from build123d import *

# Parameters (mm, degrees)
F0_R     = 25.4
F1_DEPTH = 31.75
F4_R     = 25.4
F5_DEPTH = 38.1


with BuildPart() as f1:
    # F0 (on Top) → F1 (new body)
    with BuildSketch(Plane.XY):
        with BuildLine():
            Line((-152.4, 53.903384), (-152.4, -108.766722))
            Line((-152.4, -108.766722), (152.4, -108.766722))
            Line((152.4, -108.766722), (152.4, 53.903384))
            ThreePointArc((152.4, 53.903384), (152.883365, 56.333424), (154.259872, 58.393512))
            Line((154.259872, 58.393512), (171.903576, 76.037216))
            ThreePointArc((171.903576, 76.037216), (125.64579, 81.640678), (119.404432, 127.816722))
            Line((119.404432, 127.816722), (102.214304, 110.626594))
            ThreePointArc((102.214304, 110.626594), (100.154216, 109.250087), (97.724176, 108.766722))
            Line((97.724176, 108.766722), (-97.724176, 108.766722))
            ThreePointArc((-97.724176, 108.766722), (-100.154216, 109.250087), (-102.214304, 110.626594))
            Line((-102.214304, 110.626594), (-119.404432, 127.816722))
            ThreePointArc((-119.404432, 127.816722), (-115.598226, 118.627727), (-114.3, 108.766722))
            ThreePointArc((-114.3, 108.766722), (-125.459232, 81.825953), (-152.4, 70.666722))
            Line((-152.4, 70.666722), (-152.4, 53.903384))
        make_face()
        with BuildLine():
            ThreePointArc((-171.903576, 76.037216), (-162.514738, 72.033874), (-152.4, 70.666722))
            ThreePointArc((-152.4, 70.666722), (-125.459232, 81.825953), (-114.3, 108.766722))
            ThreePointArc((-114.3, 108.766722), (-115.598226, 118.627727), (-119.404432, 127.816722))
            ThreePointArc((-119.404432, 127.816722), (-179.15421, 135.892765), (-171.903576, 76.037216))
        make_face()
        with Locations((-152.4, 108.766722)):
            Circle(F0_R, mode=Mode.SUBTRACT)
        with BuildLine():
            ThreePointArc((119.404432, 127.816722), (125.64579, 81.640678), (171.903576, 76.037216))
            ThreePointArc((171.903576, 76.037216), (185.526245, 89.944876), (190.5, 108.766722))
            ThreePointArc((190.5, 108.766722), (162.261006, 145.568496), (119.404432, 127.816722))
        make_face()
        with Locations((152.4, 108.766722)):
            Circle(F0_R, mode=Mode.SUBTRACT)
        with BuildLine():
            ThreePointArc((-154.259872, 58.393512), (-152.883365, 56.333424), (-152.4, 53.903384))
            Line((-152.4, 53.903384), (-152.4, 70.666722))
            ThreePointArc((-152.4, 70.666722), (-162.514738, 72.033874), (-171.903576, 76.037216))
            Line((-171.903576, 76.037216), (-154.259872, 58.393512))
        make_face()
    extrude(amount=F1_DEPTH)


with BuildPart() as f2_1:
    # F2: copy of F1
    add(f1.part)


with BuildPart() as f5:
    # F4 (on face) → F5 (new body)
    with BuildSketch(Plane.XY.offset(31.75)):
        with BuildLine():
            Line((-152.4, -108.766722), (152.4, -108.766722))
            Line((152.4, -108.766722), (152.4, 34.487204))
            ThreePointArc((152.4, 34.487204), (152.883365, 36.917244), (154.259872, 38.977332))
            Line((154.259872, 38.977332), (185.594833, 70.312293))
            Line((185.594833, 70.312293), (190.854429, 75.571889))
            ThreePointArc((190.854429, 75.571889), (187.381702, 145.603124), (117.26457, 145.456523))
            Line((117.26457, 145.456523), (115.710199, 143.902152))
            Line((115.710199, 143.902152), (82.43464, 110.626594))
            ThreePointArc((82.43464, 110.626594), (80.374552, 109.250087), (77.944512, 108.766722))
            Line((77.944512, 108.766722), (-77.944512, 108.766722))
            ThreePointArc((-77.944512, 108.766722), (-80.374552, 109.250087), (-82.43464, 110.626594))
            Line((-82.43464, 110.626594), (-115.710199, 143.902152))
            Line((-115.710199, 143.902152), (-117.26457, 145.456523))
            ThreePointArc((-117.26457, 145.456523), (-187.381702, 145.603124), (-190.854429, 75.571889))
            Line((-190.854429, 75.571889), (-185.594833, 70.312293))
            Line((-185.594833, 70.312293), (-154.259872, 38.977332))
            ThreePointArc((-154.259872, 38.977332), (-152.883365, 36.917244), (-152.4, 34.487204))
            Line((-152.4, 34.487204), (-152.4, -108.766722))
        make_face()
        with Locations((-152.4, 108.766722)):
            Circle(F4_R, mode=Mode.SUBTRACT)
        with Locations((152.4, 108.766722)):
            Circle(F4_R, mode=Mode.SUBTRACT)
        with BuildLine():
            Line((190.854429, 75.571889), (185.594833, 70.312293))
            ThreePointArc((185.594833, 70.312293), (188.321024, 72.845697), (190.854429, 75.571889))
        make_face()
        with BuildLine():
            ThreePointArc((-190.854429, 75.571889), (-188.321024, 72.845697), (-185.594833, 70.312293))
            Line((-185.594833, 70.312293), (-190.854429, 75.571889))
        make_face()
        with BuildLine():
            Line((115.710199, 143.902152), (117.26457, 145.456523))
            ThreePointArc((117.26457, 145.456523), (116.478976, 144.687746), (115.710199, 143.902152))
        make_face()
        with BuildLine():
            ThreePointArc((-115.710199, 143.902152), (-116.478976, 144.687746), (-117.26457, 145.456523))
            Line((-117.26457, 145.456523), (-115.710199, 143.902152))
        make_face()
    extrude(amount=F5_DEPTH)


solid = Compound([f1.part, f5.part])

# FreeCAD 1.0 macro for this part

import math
import FreeCAD as App
import Part
import Sketcher
from FreeCAD import Vector
Q = App.Units.Quantity

doc = App.newDocument("Part")
body = doc.addObject("PartDesign::Body", "Body")

# Sketch on XY plane
sketch1 = body.newObject("Sketcher::SketchObject", "Sketch")
sketch1.AttachmentSupport = (doc.getObject("XY_Plane"), [""])
sketch1.MapMode = "FlatFace"
sketch1.addGeometry(Part.LineSegment(Vector(-152.4, -108.766722, 0), Vector(152.4, -108.766722, 0)), False)
sketch1.addGeometry(Part.LineSegment(Vector(152.4, -108.766722, 0), Vector(152.4, 53.903384, 0)), False)
sketch1.addGeometry(Part.ArcOfCircle(Part.Circle(Vector(158.749999, 53.903384, 0), Vector(0, 0, 1), 6.349999), math.radians(134.999995), math.radians(180.000003)), False)
sketch1.addGeometry(Part.LineSegment(Vector(154.259872, 58.393512, 0), Vector(171.903576, 76.037216, 0)), False)
sketch1.addGeometry(Part.ArcOfCircle(Part.Circle(Vector(152.399998, 108.766723, 0), Vector(0, 0, 1), 38.100002), math.radians(-59.209201), math.radians(-0.000001)), False)
sketch1.addGeometry(Part.ArcOfCircle(Part.Circle(Vector(152.4, 108.766722, 0), Vector(0, 0, 1), 38.1), math.radians(0), math.radians(150)), False)
sketch1.addGeometry(Part.LineSegment(Vector(119.404432, 127.816722, 0), Vector(102.214304, 110.626594, 0)), False)
sketch1.addGeometry(Part.ArcOfCircle(Part.Circle(Vector(97.724176, 115.116721, 0), Vector(0, 0, 1), 6.349999), math.radians(-90.000003), math.radians(-44.999995)), False)
sketch1.addGeometry(Part.LineSegment(Vector(97.724176, 108.766722, 0), Vector(-97.724176, 108.766722, 0)), False)
sketch1.addGeometry(Part.ArcOfCircle(Part.Circle(Vector(-97.724176, 115.116721, 0), Vector(0, 0, 1), 6.349999), math.radians(-135.000005), math.radians(-89.999997)), False)
sketch1.addGeometry(Part.LineSegment(Vector(-102.214304, 110.626594, 0), Vector(-119.404432, 127.816722, 0)), False)
sketch1.addGeometry(Part.ArcOfCircle(Part.Circle(Vector(-152.4, 108.766721, 0), Vector(0, 0, 1), 38.1), math.radians(30.000001), math.radians(239.209203)), False)
sketch1.addGeometry(Part.LineSegment(Vector(-171.903576, 76.037216, 0), Vector(-154.259872, 58.393512, 0)), False)
sketch1.addGeometry(Part.ArcOfCircle(Part.Circle(Vector(-158.749999, 53.903384, 0), Vector(0, 0, 1), 6.349999), math.radians(-0.000003), math.radians(45.000005)), False)
sketch1.addGeometry(Part.LineSegment(Vector(-152.4, 53.903384, 0), Vector(-152.4, -108.766722, 0)), False)
sketch1.addGeometry(Part.Circle(Vector(-152.4, 108.766722, 0), Vector(0, 0, 1), 25.4), False)
sketch1.addGeometry(Part.Circle(Vector(152.4, 108.766722, 0), Vector(0, 0, 1), 25.4), False)
sketch1.addConstraint(Sketcher.Constraint("Coincident", 0, 2, 1, 1))
sketch1.addConstraint(Sketcher.Constraint("Tangent", 1, 2, 2, 2))
sketch1.addConstraint(Sketcher.Constraint("Tangent", 2, 1, 3, 1))
sketch1.addConstraint(Sketcher.Constraint("Coincident", 3, 2, 4, 1))
sketch1.addConstraint(Sketcher.Constraint("Tangent", 4, 2, 5, 1))
sketch1.addConstraint(Sketcher.Constraint("Coincident", 5, 2, 6, 1))
sketch1.addConstraint(Sketcher.Constraint("Tangent", 6, 2, 7, 2))
sketch1.addConstraint(Sketcher.Constraint("Tangent", 7, 1, 8, 1))
sketch1.addConstraint(Sketcher.Constraint("Tangent", 8, 2, 9, 2))
sketch1.addConstraint(Sketcher.Constraint("Tangent", 9, 1, 10, 1))
sketch1.addConstraint(Sketcher.Constraint("Coincident", 10, 2, 11, 1))
sketch1.addConstraint(Sketcher.Constraint("Coincident", 11, 2, 12, 1))
sketch1.addConstraint(Sketcher.Constraint("Tangent", 12, 2, 13, 2))
sketch1.addConstraint(Sketcher.Constraint("Tangent", 13, 1, 14, 1))
sketch1.addConstraint(Sketcher.Constraint("Coincident", 14, 2, 0, 1))
sketch1.addConstraint(Sketcher.Constraint("Horizontal", 0))
sketch1.addConstraint(Sketcher.Constraint("Vertical", 1))
sketch1.addConstraint(Sketcher.Constraint("Horizontal", 8))
sketch1.addConstraint(Sketcher.Constraint("Vertical", 14))
sketch1.addConstraint(Sketcher.Constraint("Coincident", 15, 3, 11, 3))
sketch1.addConstraint(Sketcher.Constraint("Coincident", 16, 3, 4, 3))
sketch1.addConstraint(Sketcher.Constraint("Equal", 2, 7))
sketch1.addConstraint(Sketcher.Constraint("Equal", 7, 9))
sketch1.addConstraint(Sketcher.Constraint("Equal", 5, 11))
sketch1.addConstraint(Sketcher.Constraint("Equal", 9, 13))
sketch1.addConstraint(Sketcher.Constraint("Equal", 15, 16))
sketch1.addConstraint(Sketcher.Constraint("Symmetric", 4, 3, 11, 3, -2))
sketch1.addConstraint(Sketcher.Constraint("Symmetric", 2, 3, 13, 3, -2))
sketch1.addConstraint(Sketcher.Constraint("Symmetric", 6, 2, 9, 1, -2))
sketch1.addConstraint(Sketcher.Constraint("Symmetric", 3, 2, 11, 2, -2))
sketch1.addConstraint(Sketcher.Constraint("Parallel", 3, 6))
sketch1.addConstraint(Sketcher.Constraint("Perpendicular", 6, 10))
sketch1.addConstraint(Sketcher.Constraint("Horizontal", 16, 3, 4, 2))
sketch1.addConstraint(Sketcher.Constraint("Horizontal", 4, 2, 7, 1))
sketch1.addConstraint(Sketcher.Constraint("Vertical", 16, 3, 0, 2))
sketch1.addConstraint(Sketcher.Constraint("Diameter", 15, Q("2 in")))
sketch1.addConstraint(Sketcher.Constraint("Radius", 4, Q("1.5000001 in")))
sketch1.addConstraint(Sketcher.Constraint("DistanceX", 0, 1, 0, 2, Q("12 in")))
sketch1.addConstraint(Sketcher.Constraint("Radius", 2, Q("0.25 in")))
sketch1.addConstraint(Sketcher.Constraint("DistanceY", 7, 3, 5, 2, Q("0.5 in")))
sketch1.addConstraint(Sketcher.Constraint("DistanceY", 1, 1, 1, 2, Q("162.670106 mm")))
sketch1.addConstraint(Sketcher.Constraint("DistanceY", -1, 1, 7, 3, Q("115.116721 mm")))
sketch1.addConstraint(Sketcher.Constraint("DistanceY", 0, 2, -1, 1, Q("108.766722 mm")))
pad1 = body.newObject("PartDesign::Pad", "Pad")
pad1.Profile = sketch1
pad1.Length = Q("1.25 in")
body2 = doc.addObject("PartDesign::Body", "Body001")
doc.recompute()

body2.BaseFeature = body
doc.recompute()
body3 = doc.addObject("PartDesign::Body", "Body002")

# Sketch on XY plane
sketch2 = body3.newObject("Sketcher::SketchObject", "Sketch001")
sketch2.AttachmentSupport = (doc.getObject("XY_Plane002"), [""])
sketch2.MapMode = "FlatFace"
sketch2.AttachmentOffset = App.Placement(Vector(0, 0, 1.25 * 25.4), App.Rotation())
sketch2.addGeometry(Part.LineSegment(Vector(-152.4, -108.766722, 0), Vector(152.4, -108.766722, 0)), False)
sketch2.addGeometry(Part.LineSegment(Vector(152.4, -108.766722, 0), Vector(152.4, 34.487204, 0)), False)
sketch2.addGeometry(Part.ArcOfCircle(Part.Circle(Vector(158.749999, 34.487204, 0), Vector(0, 0, 1), 6.349999), math.radians(134.999995), math.radians(180.000003)), False)
sketch2.addGeometry(Part.LineSegment(Vector(154.259872, 38.977332, 0), Vector(185.594833, 70.312293, 0)), False)
sketch2.addGeometry(Part.ArcOfCircle(Part.Circle(Vector(152.399882, 108.76684, 0), Vector(0, 0, 1), 50.800166), math.radians(-49.198398), math.radians(-40.801602)), False)
sketch2.addGeometry(Part.ArcOfCircle(Part.Circle(Vector(152.4, 108.766722, 0), Vector(0, 0, 1), 50.8), math.radians(-40.801588), math.radians(133.760255)), False)
sketch2.addGeometry(Part.ArcOfCircle(Part.Circle(Vector(152.400246, 108.766476, 0), Vector(0, 0, 1), 50.800348), math.radians(133.760263), math.radians(136.239737)), False)
sketch2.addGeometry(Part.LineSegment(Vector(115.710199, 143.902152, 0), Vector(82.43464, 110.626594, 0)), False)
sketch2.addGeometry(Part.ArcOfCircle(Part.Circle(Vector(77.944512, 115.116721, 0), Vector(0, 0, 1), 6.349999), math.radians(-90.000003), math.radians(-44.999995)), False)
sketch2.addGeometry(Part.LineSegment(Vector(77.944512, 108.766722, 0), Vector(-77.944512, 108.766722, 0)), False)
sketch2.addGeometry(Part.ArcOfCircle(Part.Circle(Vector(-77.944512, 115.116721, 0), Vector(0, 0, 1), 6.349999), math.radians(-135.000005), math.radians(-89.999997)), False)
sketch2.addGeometry(Part.LineSegment(Vector(-82.43464, 110.626594, 0), Vector(-115.710199, 143.902152, 0)), False)
sketch2.addGeometry(Part.ArcOfCircle(Part.Circle(Vector(-152.400246, 108.766476, 0), Vector(0, 0, 1), 50.800348), math.radians(43.760263), math.radians(46.239737)), False)
sketch2.addGeometry(Part.ArcOfCircle(Part.Circle(Vector(-152.4, 108.766722, 0), Vector(0, 0, 1), 50.8), math.radians(46.239745), math.radians(220.801588)), False)
sketch2.addGeometry(Part.ArcOfCircle(Part.Circle(Vector(-152.399882, 108.76684, 0), Vector(0, 0, 1), 50.800166), math.radians(-139.198398), math.radians(-130.801602)), False)
sketch2.addGeometry(Part.LineSegment(Vector(-185.594833, 70.312293, 0), Vector(-154.259872, 38.977332, 0)), False)
sketch2.addGeometry(Part.ArcOfCircle(Part.Circle(Vector(-158.749999, 34.487204, 0), Vector(0, 0, 1), 6.349999), math.radians(-0.000003), math.radians(45.000005)), False)
sketch2.addGeometry(Part.LineSegment(Vector(-152.4, 34.487204, 0), Vector(-152.4, -108.766722, 0)), False)
sketch2.addGeometry(Part.Circle(Vector(-152.4, 108.766722, 0), Vector(0, 0, 1), 25.4), False)
sketch2.addGeometry(Part.Circle(Vector(152.4, 108.766722, 0), Vector(0, 0, 1), 25.4), False)
sketch2.addConstraint(Sketcher.Constraint("Coincident", 0, 2, 1, 1))
sketch2.addConstraint(Sketcher.Constraint("Coincident", 1, 2, 2, 2))
sketch2.addConstraint(Sketcher.Constraint("Coincident", 2, 1, 3, 1))
sketch2.addConstraint(Sketcher.Constraint("Coincident", 3, 2, 4, 1))
sketch2.addConstraint(Sketcher.Constraint("Coincident", 4, 2, 5, 1))
sketch2.addConstraint(Sketcher.Constraint("Coincident", 5, 2, 6, 1))
sketch2.addConstraint(Sketcher.Constraint("Coincident", 6, 2, 7, 1))
sketch2.addConstraint(Sketcher.Constraint("Coincident", 7, 2, 8, 2))
sketch2.addConstraint(Sketcher.Constraint("Coincident", 8, 1, 9, 1))
sketch2.addConstraint(Sketcher.Constraint("Coincident", 9, 2, 10, 2))
sketch2.addConstraint(Sketcher.Constraint("Coincident", 10, 1, 11, 1))
sketch2.addConstraint(Sketcher.Constraint("Coincident", 11, 2, 12, 1))
sketch2.addConstraint(Sketcher.Constraint("Coincident", 12, 2, 13, 1))
sketch2.addConstraint(Sketcher.Constraint("Coincident", 13, 2, 14, 1))
sketch2.addConstraint(Sketcher.Constraint("Coincident", 14, 2, 15, 1))
sketch2.addConstraint(Sketcher.Constraint("Coincident", 15, 2, 16, 2))
sketch2.addConstraint(Sketcher.Constraint("Coincident", 16, 1, 17, 1))
sketch2.addConstraint(Sketcher.Constraint("Coincident", 17, 2, 0, 1))
sketch2.addConstraint(Sketcher.Constraint("Horizontal", 0))
sketch2.addConstraint(Sketcher.Constraint("Vertical", 1))
sketch2.addConstraint(Sketcher.Constraint("Horizontal", 9))
sketch2.addConstraint(Sketcher.Constraint("Vertical", 17))
sketch2.addConstraint(Sketcher.Constraint("Coincident", 18, 3, 13, 3))
sketch2.addConstraint(Sketcher.Constraint("Coincident", 19, 3, 5, 3))
sketch2.addConstraint(Sketcher.Constraint("Diameter", 18, Q("2 in")))
sketch2.addConstraint(Sketcher.Constraint("Diameter", 19, Q("2 in")))
sketch2.addConstraint(Sketcher.Constraint("Radius", 5, Q("2 in")))
sketch2.addConstraint(Sketcher.Constraint("Radius", 13, Q("2 in")))
sketch2.addConstraint(Sketcher.Constraint("DistanceX", 0, 1, 0, 2, Q("12 in")))
sketch2.addConstraint(Sketcher.Constraint("Radius", 2, Q("0.25 in")))
sketch2.addConstraint(Sketcher.Constraint("Radius", 8, Q("0.25 in")))
sketch2.addConstraint(Sketcher.Constraint("Radius", 10, Q("0.25 in")))
sketch2.addConstraint(Sketcher.Constraint("Radius", 16, Q("0.25 in")))
sketch2.addConstraint(Sketcher.Constraint("DistanceX", -1, 1, 5, 3, Q("6 in")))
sketch2.addConstraint(Sketcher.Constraint("DistanceX", 13, 3, -1, 1, Q("6 in")))
sketch2.addConstraint(Sketcher.Constraint("DistanceX", -1, 1, 0, 2, Q("6 in")))
sketch2.addConstraint(Sketcher.Constraint("DistanceY", 5, 3, 8, 3, Q("0.25 in")))
sketch2.addConstraint(Sketcher.Constraint("DistanceY", 13, 3, 10, 3, Q("0.25 in")))
sketch2.addConstraint(Sketcher.Constraint("Radius", 4, Q("50.800166 mm")))
sketch2.addConstraint(Sketcher.Constraint("Radius", 6, Q("50.800348 mm")))
sketch2.addConstraint(Sketcher.Constraint("Radius", 12, Q("50.800348 mm")))
sketch2.addConstraint(Sketcher.Constraint("Radius", 14, Q("50.800166 mm")))
sketch2.addConstraint(Sketcher.Constraint("DistanceX", -1, 1, 6, 2, Q("115.710199 mm")))
sketch2.addConstraint(Sketcher.Constraint("DistanceX", 11, 2, -1, 1, Q("115.710199 mm")))
sketch2.addConstraint(Sketcher.Constraint("DistanceY", 19, 3, 5, 2, Q("36.689801 mm")))
sketch2.addConstraint(Sketcher.Constraint("DistanceY", 18, 3, 12, 2, Q("36.689801 mm")))
sketch2.addConstraint(Sketcher.Constraint("DistanceX", 9, 2, 9, 1, Q("155.889024 mm")))
sketch2.addConstraint(Sketcher.Constraint("DistanceY", 1, 1, 1, 2, Q("143.253926 mm")))
sketch2.addConstraint(Sketcher.Constraint("DistanceY", 17, 2, 17, 1, Q("143.253926 mm")))
sketch2.addConstraint(Sketcher.Constraint("DistanceY", -1, 1, 4, 3, Q("108.76684 mm")))
sketch2.addConstraint(Sketcher.Constraint("DistanceY", -1, 1, 5, 3, Q("108.766722 mm")))
sketch2.addConstraint(Sketcher.Constraint("DistanceY", -1, 1, 14, 3, Q("108.76684 mm")))
sketch2.addConstraint(Sketcher.Constraint("DistanceY", 0, 2, -1, 1, Q("108.766722 mm")))
sketch2.addConstraint(Sketcher.Constraint("DistanceY", -1, 1, 2, 1, Q("38.977332 mm")))
sketch2.addConstraint(Sketcher.Constraint("DistanceX", -1, 1, 4, 2, Q("190.854429 mm")))
sketch2.addConstraint(Sketcher.Constraint("DistanceX", -1, 1, 7, 2, Q("82.43464 mm")))
sketch2.addConstraint(Sketcher.Constraint("DistanceX", 10, 1, -1, 1, Q("82.43464 mm")))
sketch2.addConstraint(Sketcher.Constraint("DistanceY", -1, 1, 11, 2, Q("143.902152 mm")))
sketch2.addConstraint(Sketcher.Constraint("DistanceX", 13, 2, -1, 1, Q("190.854429 mm")))
sketch2.addConstraint(Sketcher.Constraint("DistanceX", 15, 2, -1, 1, Q("154.259872 mm")))
sketch2.addConstraint(Sketcher.Constraint("DistanceY", -1, 1, 15, 2, Q("38.977332 mm")))
sketch2.addConstraint(Sketcher.Constraint("DistanceY", 2, 3, 6, 3, Q("74.279271 mm")))
sketch2.addConstraint(Sketcher.Constraint("DistanceX", 8, 3, 4, 3, Q("74.45537 mm")))
sketch2.addConstraint(Sketcher.Constraint("DistanceX", 10, 3, 6, 3, Q("230.344759 mm")))
sketch2.addConstraint(Sketcher.Constraint("DistanceX", 10, 3, 2, 3, Q("236.694511 mm")))
sketch2.addConstraint(Sketcher.Constraint("DistanceX", 2, 1, 3, 2, Q("31.334961 mm")))
sketch2.addConstraint(Sketcher.Constraint("DistanceX", 8, 1, 4, 3, Q("74.45537 mm")))
sketch2.addConstraint(Sketcher.Constraint("DistanceY", 16, 3, 14, 2, Q("35.825089 mm")))
pad2 = body3.newObject("PartDesign::Pad", "Pad001")
pad2.Profile = sketch2
pad2.Length = Q("1.5 in")
body.Visibility = False

doc.recompute()
